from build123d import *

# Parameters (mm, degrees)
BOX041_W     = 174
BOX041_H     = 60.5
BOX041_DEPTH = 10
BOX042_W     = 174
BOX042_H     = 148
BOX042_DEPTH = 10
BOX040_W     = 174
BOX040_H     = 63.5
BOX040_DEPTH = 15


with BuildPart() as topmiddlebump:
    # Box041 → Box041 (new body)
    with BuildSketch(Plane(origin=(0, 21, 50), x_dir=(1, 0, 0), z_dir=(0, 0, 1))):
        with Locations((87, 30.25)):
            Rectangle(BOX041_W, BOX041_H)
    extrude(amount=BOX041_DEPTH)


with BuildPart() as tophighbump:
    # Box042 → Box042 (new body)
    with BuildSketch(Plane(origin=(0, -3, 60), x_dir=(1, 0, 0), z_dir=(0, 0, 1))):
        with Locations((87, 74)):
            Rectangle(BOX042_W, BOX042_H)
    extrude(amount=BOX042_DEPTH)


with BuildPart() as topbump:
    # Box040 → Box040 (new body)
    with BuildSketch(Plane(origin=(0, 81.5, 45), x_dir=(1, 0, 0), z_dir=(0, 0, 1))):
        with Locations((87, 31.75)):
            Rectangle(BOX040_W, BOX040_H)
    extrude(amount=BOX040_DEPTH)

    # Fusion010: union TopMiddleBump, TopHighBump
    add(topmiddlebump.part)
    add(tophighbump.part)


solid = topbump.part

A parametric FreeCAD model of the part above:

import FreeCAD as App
import Part
import Sketcher

V = App.Vector
Q = App.Units.Quantity


def add_polygon(sketch, points):
    """Adds a closed chain of lines whose ends are joined by coincident constraints."""
    first, n = sketch.GeometryCount, len(points)
    for a, b in zip(points, points[1:] + points[:1]):
        sketch.addGeometry(Part.LineSegment(App.Vector(*a, 0), App.Vector(*b, 0)), False)
    for i in range(n):
        sketch.addConstraint(Sketcher.Constraint("Coincident", first + i, 2, first + (i + 1) % n, 1))

doc = App.newDocument("Part")
params = doc.addObject("Spreadsheet::Sheet", "Params")
for row, (alias, value) in enumerate([
    ("sketch1_width", "174 mm"),
    ("sketch1_height", "60.5 mm"),
    ("pad1_length", "10 mm"),
    ("sketch2_width", "174 mm"),
    ("sketch2_height", "148 mm"),
    ("pad2_length", "10 mm"),
    ("sketch3_width", "174 mm"),
    ("sketch3_height", "63.5 mm"),
    ("pad3_length", "15 mm"),
], start=1):
    params.set(f"A{row}", alias)
    params.set(f"B{row}", "=" + value)
    params.setAlias(f"B{row}", alias)

body = doc.addObject("PartDesign::Body", "Body")

# Sketch on XY plane
sketch1 = body.newObject("Sketcher::SketchObject", "Sketch")
sketch1.AttachmentSupport = (doc.getObject("XY_Plane"), [""])
sketch1.MapMode = "FlatFace"
sketch1.AttachmentOffset = App.Placement(V(0, 0, 50), App.Rotation())
add_polygon(sketch1, [(0, 81.5), (0, 21), (174, 21), (174, 81.5)])  # lines 0-3
sketch1.addConstraint(Sketcher.Constraint("Vertical", 0))
sketch1.addConstraint(Sketcher.Constraint("Horizontal", 1))
sketch1.addConstraint(Sketcher.Constraint("Vertical", 2))
sketch1.addConstraint(Sketcher.Constraint("Horizontal", 3))
sketch1.addConstraint(Sketcher.Constraint("PointOnObject", 0, 2, -2))
sketch1.addConstraint(Sketcher.Constraint("DistanceX", 1, 1, 1, 2, Q("174 mm")))
sketch1.addConstraint(Sketcher.Constraint("DistanceY", 0, 2, 0, 1, Q("60.5 mm")))
sketch1.addConstraint(Sketcher.Constraint("DistanceY", -1, 1, 0, 2, Q("21 mm")))
sketch1.setExpression("Constraints[9]", "Params.sketch1_width")
sketch1.setExpression("Constraints[10]", "Params.sketch1_height")
pad1 = body.newObject("PartDesign::Pad", "Pad")
pad1.Profile = sketch1
pad1.setExpression("Length", "Params.pad1_length")
body2 = doc.addObject("PartDesign::Body", "Body001")

# Sketch on XY plane
sketch2 = body2.newObject("Sketcher::SketchObject", "Sketch001")
sketch2.AttachmentSupport = (doc.getObject("XY_Plane001"), [""])
sketch2.MapMode = "FlatFace"
sketch2.AttachmentOffset = App.Placement(V(0, 0, 60), App.Rotation())
add_polygon(sketch2, [(0, 145), (0, -3), (174, -3), (174, 145)])  # lines 0-3
sketch2.addConstraint(Sketcher.Constraint("Vertical", 0))
sketch2.addConstraint(Sketcher.Constraint("Horizontal", 1))
sketch2.addConstraint(Sketcher.Constraint("Vertical", 2))
sketch2.addConstraint(Sketcher.Constraint("Horizontal", 3))
sketch2.addConstraint(Sketcher.Constraint("PointOnObject", 0, 2, -2))
sketch2.addConstraint(Sketcher.Constraint("DistanceX", 1, 1, 1, 2, Q("174 mm")))
sketch2.addConstraint(Sketcher.Constraint("DistanceY", 0, 2, 0, 1, Q("148 mm")))
sketch2.addConstraint(Sketcher.Constraint("DistanceY", 0, 2, -1, 1, Q("3 mm")))
sketch2.setExpression("Constraints[9]", "Params.sketch2_width")
sketch2.setExpression("Constraints[10]", "Params.sketch2_height")
pad2 = body2.newObject("PartDesign::Pad", "Pad001")
pad2.Profile = sketch2
pad2.setExpression("Length", "Params.pad2_length")
body3 = doc.addObject("PartDesign::Body", "Body002")

# Sketch on XY plane
sketch3 = body3.newObject("Sketcher::SketchObject", "Sketch002")
sketch3.AttachmentSupport = (doc.getObject("XY_Plane002"), [""])
sketch3.MapMode = "FlatFace"
sketch3.AttachmentOffset = App.Placement(V(0, 0, 45), App.Rotation())
add_polygon(sketch3, [(0, 145), (0, 81.5), (174, 81.5), (174, 145)])  # lines 0-3
sketch3.addConstraint(Sketcher.Constraint("Vertical", 0))
sketch3.addConstraint(Sketcher.Constraint("Horizontal", 1))
sketch3.addConstraint(Sketcher.Constraint("Vertical", 2))
sketch3.addConstraint(Sketcher.Constraint("Horizontal", 3))
sketch3.addConstraint(Sketcher.Constraint("PointOnObject", 0, 2, -2))
sketch3.addConstraint(Sketcher.Constraint("DistanceX", 1, 1, 1, 2, Q("174 mm")))
sketch3.addConstraint(Sketcher.Constraint("DistanceY", 0, 2, 0, 1, Q("63.5 mm")))
sketch3.addConstraint(Sketcher.Constraint("DistanceY", -1, 1, 2, 2, Q("145 mm")))
sketch3.setExpression("Constraints[9]", "Params.sketch3_width")
sketch3.setExpression("Constraints[10]", "Params.sketch3_height")
pad3 = body3.newObject("PartDesign::Pad", "Pad002")
pad3.Profile = sketch3
pad3.setExpression("Length", "Params.pad3_length")
doc.recompute()

boolean = body3.newObject("PartDesign::Boolean", "Boolean")
boolean.Type = "Fuse"
boolean.addObjects([body])
doc.recompute()

boolean2 = body3.newObject("PartDesign::Boolean", "Boolean001")
boolean2.Type = "Fuse"
boolean2.addObjects([body2])

doc.recompute()
